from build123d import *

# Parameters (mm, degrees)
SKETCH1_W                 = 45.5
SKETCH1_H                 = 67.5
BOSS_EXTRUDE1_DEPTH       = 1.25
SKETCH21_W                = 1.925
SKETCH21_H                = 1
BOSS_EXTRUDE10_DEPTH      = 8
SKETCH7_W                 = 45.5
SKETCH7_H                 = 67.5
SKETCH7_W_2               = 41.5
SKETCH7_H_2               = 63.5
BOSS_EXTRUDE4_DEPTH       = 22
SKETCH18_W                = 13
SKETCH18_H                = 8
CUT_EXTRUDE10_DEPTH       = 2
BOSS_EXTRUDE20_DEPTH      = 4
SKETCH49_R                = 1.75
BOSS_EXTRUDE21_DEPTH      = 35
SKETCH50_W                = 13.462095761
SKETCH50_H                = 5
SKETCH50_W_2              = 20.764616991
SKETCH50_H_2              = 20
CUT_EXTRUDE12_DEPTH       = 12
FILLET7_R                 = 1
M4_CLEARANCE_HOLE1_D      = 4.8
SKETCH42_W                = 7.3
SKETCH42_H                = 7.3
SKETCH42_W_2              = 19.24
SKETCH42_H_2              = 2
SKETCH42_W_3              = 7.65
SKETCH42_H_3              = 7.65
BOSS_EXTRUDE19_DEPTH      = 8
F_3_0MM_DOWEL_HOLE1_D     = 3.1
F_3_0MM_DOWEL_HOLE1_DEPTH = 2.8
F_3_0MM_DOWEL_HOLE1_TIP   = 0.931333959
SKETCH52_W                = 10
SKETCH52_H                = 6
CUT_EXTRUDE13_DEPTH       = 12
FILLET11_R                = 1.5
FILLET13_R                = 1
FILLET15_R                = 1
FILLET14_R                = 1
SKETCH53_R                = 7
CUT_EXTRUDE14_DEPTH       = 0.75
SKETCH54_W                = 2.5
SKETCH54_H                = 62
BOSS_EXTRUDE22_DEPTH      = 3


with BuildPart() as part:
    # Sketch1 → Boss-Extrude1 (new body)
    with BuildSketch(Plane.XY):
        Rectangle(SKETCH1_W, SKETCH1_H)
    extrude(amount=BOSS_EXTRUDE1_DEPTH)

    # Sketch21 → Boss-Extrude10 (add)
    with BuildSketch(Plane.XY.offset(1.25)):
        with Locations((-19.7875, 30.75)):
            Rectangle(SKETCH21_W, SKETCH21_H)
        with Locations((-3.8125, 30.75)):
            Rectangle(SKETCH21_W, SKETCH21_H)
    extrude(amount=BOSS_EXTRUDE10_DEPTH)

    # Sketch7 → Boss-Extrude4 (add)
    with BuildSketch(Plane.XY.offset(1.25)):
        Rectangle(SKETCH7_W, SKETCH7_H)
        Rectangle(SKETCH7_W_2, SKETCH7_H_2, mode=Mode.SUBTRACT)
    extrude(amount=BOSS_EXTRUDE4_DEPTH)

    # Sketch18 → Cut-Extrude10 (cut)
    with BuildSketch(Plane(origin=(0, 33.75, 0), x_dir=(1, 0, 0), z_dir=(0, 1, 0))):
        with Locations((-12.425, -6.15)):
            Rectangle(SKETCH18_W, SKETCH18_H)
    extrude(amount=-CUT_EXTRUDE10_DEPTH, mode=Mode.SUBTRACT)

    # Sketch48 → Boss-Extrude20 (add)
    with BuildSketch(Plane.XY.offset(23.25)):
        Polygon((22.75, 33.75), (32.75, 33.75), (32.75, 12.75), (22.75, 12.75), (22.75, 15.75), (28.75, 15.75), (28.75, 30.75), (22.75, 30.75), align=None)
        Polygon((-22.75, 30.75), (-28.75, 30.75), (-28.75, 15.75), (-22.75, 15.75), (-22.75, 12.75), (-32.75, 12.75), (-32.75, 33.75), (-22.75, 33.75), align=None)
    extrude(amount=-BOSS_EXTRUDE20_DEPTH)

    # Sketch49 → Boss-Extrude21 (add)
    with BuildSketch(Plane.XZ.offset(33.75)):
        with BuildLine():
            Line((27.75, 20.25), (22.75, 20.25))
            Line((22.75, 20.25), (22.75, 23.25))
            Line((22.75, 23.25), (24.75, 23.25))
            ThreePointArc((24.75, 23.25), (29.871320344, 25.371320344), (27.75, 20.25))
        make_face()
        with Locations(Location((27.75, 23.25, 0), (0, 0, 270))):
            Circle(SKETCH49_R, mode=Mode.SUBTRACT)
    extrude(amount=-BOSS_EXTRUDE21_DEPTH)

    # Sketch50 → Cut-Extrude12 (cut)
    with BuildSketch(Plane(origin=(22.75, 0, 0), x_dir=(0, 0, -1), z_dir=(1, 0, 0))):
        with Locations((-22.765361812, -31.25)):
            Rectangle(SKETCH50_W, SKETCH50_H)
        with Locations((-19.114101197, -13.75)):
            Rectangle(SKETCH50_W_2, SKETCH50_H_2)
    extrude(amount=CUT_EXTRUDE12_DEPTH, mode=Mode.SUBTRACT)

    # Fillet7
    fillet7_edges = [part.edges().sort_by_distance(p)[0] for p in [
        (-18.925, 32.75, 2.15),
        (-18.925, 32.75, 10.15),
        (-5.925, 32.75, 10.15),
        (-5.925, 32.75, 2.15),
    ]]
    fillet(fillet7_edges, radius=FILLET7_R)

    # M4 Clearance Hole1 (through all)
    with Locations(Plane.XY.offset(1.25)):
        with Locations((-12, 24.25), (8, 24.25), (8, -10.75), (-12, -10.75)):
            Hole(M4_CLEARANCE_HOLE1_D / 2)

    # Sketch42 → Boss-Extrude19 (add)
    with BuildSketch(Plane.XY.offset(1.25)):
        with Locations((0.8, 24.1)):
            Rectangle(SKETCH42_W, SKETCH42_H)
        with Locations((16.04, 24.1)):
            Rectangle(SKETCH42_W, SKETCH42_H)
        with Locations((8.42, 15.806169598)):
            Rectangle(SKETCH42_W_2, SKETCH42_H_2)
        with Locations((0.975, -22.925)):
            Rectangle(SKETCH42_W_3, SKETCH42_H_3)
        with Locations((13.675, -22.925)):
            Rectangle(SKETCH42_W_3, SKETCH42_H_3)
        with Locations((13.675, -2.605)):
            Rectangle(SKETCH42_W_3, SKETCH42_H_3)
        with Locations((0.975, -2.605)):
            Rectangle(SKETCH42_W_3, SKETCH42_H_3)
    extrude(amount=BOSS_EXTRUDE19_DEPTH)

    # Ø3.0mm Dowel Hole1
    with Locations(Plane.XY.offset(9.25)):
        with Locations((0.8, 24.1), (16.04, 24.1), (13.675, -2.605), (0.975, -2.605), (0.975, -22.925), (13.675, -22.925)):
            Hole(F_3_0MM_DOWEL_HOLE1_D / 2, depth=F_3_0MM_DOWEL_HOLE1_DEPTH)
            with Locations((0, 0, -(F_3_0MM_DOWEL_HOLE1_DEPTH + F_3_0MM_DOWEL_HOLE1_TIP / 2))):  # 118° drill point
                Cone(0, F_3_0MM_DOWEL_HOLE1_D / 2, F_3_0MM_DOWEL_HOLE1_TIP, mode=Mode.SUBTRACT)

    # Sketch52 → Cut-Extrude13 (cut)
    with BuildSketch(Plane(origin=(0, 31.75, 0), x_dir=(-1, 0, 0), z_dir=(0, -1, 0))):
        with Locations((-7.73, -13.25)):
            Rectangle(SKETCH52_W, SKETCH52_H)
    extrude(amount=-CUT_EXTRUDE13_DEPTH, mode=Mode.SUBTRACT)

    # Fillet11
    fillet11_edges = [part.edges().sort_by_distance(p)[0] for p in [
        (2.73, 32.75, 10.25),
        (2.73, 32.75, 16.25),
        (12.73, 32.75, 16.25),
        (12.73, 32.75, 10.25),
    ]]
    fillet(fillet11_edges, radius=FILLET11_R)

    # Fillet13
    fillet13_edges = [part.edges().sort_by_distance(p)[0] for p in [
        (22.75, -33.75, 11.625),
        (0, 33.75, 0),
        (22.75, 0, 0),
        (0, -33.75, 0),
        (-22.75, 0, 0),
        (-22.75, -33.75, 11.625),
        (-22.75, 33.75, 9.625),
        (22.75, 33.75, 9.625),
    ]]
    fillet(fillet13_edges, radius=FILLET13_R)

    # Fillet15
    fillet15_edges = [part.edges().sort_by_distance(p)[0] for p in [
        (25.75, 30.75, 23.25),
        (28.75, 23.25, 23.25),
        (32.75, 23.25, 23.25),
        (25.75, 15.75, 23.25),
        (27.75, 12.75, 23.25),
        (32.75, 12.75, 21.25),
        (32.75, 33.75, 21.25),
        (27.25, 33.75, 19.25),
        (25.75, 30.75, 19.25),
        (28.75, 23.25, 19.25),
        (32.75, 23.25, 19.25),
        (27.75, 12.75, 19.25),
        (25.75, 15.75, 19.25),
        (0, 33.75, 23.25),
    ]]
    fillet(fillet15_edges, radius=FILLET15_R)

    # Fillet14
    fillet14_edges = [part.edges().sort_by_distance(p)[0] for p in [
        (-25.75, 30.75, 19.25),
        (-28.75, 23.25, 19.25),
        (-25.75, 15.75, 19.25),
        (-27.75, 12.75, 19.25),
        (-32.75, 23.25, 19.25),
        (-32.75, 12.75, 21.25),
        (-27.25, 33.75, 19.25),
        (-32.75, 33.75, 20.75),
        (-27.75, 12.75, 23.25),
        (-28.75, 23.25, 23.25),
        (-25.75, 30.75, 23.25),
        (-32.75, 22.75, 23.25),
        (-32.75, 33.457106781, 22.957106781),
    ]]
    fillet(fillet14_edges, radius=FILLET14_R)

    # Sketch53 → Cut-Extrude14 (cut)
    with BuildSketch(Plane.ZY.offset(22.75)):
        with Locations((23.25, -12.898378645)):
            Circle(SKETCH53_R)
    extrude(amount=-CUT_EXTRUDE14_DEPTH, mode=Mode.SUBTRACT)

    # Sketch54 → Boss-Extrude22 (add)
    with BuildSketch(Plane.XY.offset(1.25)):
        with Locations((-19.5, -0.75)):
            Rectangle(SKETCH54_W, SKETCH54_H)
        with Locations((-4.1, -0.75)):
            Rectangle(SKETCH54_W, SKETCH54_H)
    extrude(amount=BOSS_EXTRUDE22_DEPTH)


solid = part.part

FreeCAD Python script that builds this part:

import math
import FreeCAD as App
import Part
import Sketcher


def edges_at(feature, points):
    """Names of the edges that pass closest to the given points."""
    edges = feature.Shape.Edges
    near = lambda p: min(range(len(edges)), key=lambda i: edges[i].distToShape(Part.Vertex(*p))[0])
    return sorted({f"Edge{near(p) + 1}" for p in points})


def add_polygon(sketch, points):
    """Adds a closed chain of lines whose ends are joined by coincident constraints."""
    first, n = sketch.GeometryCount, len(points)
    for a, b in zip(points, points[1:] + points[:1]):
        sketch.addGeometry(Part.LineSegment(App.Vector(*a, 0), App.Vector(*b, 0)), False)
    for i in range(n):
        sketch.addConstraint(Sketcher.Constraint("Coincident", first + i, 2, first + (i + 1) % n, 1))

doc = App.newDocument("Part")
body = doc.addObject("PartDesign::Body", "Body")

# Sketch on XY plane
sketch1 = body.newObject("Sketcher::SketchObject", "Sketch")
sketch1.AttachmentSupport = (doc.getObject("XY_Plane"), [""])
sketch1.MapMode = "FlatFace"
add_polygon(sketch1, [(-22.75, 33.75), (-22.75, -33.75), (22.75, -33.75), (22.75, 33.75)])  # lines 0-3
sketch1.addConstraint([
    Sketcher.Constraint("Vertical", 0),
    Sketcher.Constraint("Horizontal", 1),
    Sketcher.Constraint("Vertical", 2),
    Sketcher.Constraint("Horizontal", 3),
    Sketcher.Constraint("Symmetric", 0, 2, 2, 2, -1, 1),
    Sketcher.Constraint("DistanceX", 1, 1, 1, 2, 45.5),
    Sketcher.Constraint("DistanceY", 0, 2, 0, 1, 67.5),
])
pad1 = body.newObject("PartDesign::Pad", "Pad")
pad1.Profile = sketch1
pad1.Length = 1.25

# Sketch on XY plane
sketch2 = body.newObject("Sketcher::SketchObject", "Sketch001")
sketch2.AttachmentSupport = (doc.getObject("XY_Plane"), [""])
sketch2.MapMode = "FlatFace"
sketch2.AttachmentOffset = App.Placement(App.Vector(0, 0, 1.25), App.Rotation())
add_polygon(sketch2, [(-20.75, 31.25), (-20.75, 30.25), (-18.825, 30.25), (-18.825, 31.25)])  # lines 0-3
add_polygon(sketch2, [(-4.775, 31.25), (-4.775, 30.25), (-2.85, 30.25), (-2.85, 31.25)])  # lines 4-7
sketch2.addConstraint([
    Sketcher.Constraint("Vertical", 0),
    Sketcher.Constraint("Horizontal", 1),
    Sketcher.Constraint("Vertical", 2),
    Sketcher.Constraint("Horizontal", 3),
    Sketcher.Constraint("Vertical", 4),
    Sketcher.Constraint("Horizontal", 5),
    Sketcher.Constraint("Vertical", 6),
    Sketcher.Constraint("Horizontal", 7),
    Sketcher.Constraint("Horizontal", 1, 2, 4, 2),
    Sketcher.Constraint("Horizontal", 3, 2, 6, 2),
    Sketcher.Constraint("Equal", 3, 5),
    Sketcher.Constraint("DistanceY", 0, 2, 0, 1, 1.0),
    Sketcher.Constraint("DistanceX", 0, 2, 5, 2, 17.9),
    Sketcher.Constraint("DistanceX", 1, 1, 1, 2, 1.925),
    Sketcher.Constraint("DistanceX", 0, 2, -1, 1, 20.75),
    Sketcher.Constraint("DistanceY", -1, 1, 0, 2, 30.25),
])
pad2 = body.newObject("PartDesign::Pad", "Pad001")
pad2.Profile = sketch2
pad2.Length = 8

# Sketch on XY plane
sketch3 = body.newObject("Sketcher::SketchObject", "Sketch002")
sketch3.AttachmentSupport = (doc.getObject("XY_Plane"), [""])
sketch3.MapMode = "FlatFace"
sketch3.AttachmentOffset = App.Placement(App.Vector(0, 0, 1.25), App.Rotation())
add_polygon(sketch3, [(-22.75, 33.75), (-22.75, -33.75), (22.75, -33.75), (22.75, 33.75)])  # lines 0-3
add_polygon(sketch3, [(20.75, -31.75), (-20.75, -31.75), (-20.75, 31.75), (20.75, 31.75)])  # lines 4-7
sketch3.addConstraint([
    Sketcher.Constraint("Vertical", 0),
    Sketcher.Constraint("Horizontal", 1),
    Sketcher.Constraint("Vertical", 2),
    Sketcher.Constraint("Horizontal", 3),
    Sketcher.Constraint("Horizontal", 4),
    Sketcher.Constraint("Vertical", 5),
    Sketcher.Constraint("Horizontal", 6),
    Sketcher.Constraint("Vertical", 7),
    Sketcher.Constraint("Symmetric", 0, 2, 2, 2, -1, 1),
    Sketcher.Constraint("Symmetric", 4, 2, 6, 2, -1, 1),
    Sketcher.Constraint("DistanceX", 1, 1, 1, 2, 45.5),
    Sketcher.Constraint("DistanceX", 4, 2, 4, 1, 41.5),
    Sketcher.Constraint("DistanceY", 0, 2, 0, 1, 67.5),
    Sketcher.Constraint("DistanceY", 5, 1, 5, 2, 63.5),
])
pad3 = body.newObject("PartDesign::Pad", "Pad002")
pad3.Profile = sketch3
pad3.Length = 22

# Sketch on XZ plane
sketch4 = body.newObject("Sketcher::SketchObject", "Sketch003")
sketch4.AttachmentSupport = (doc.getObject("XZ_Plane"), [""])
sketch4.MapMode = "FlatFace"
sketch4.AttachmentOffset = App.Placement(App.Vector(0, 0, -33.75), App.Rotation())
add_polygon(sketch4, [(-18.925, 2.15), (-18.925, 10.15), (-5.925, 10.15), (-5.925, 2.15)])  # lines 0-3
sketch4.addConstraint([
    Sketcher.Constraint("Vertical", 0),
    Sketcher.Constraint("Horizontal", 1),
    Sketcher.Constraint("Vertical", 2),
    Sketcher.Constraint("Horizontal", 3),
    Sketcher.Constraint("DistanceX", 1, 1, 1, 2, 13.0),
    Sketcher.Constraint("DistanceY", 0, 1, 0, 2, 8.0),
    Sketcher.Constraint("DistanceY", -1, 1, 0, 2, 10.15),
    Sketcher.Constraint("DistanceX", 0, 2, -1, 1, 18.925),
])
pocket1 = body.newObject("PartDesign::Pocket", "Pocket")
pocket1.Profile = sketch4
pocket1.Length = 2
pocket1.Reversed = True

# Sketch on XY plane
sketch5 = body.newObject("Sketcher::SketchObject", "Sketch004")
sketch5.AttachmentSupport = (doc.getObject("XY_Plane"), [""])
sketch5.MapMode = "FlatFace"
sketch5.AttachmentOffset = App.Placement(App.Vector(0, 0, 23.25), App.Rotation())
add_polygon(sketch5, [(32.75, 33.75), (22.75, 33.75), (22.75, 30.75), (28.75, 30.75), (28.75, 15.75), (22.75, 15.75), (22.75, 12.75), (32.75, 12.75)])  # lines 0-7
add_polygon(sketch5, [(-28.75, 30.75), (-22.75, 30.75), (-22.75, 33.75), (-32.75, 33.75), (-32.75, 12.75), (-22.75, 12.75), (-22.75, 15.75), (-28.75, 15.75)])  # lines 8-15
sketch5.addConstraint([
    Sketcher.Constraint("Horizontal", 0),
    Sketcher.Constraint("Vertical", 1),
    Sketcher.Constraint("Horizontal", 2),
    Sketcher.Constraint("Vertical", 3),
    Sketcher.Constraint("Horizontal", 4),
    Sketcher.Constraint("Vertical", 5),
    Sketcher.Constraint("Horizontal", 6),
    Sketcher.Constraint("Vertical", 7),
    Sketcher.Constraint("Horizontal", 8),
    Sketcher.Constraint("Vertical", 9),
    Sketcher.Constraint("Horizontal", 10),
    Sketcher.Constraint("Vertical", 11),
    Sketcher.Constraint("Horizontal", 12),
    Sketcher.Constraint("Vertical", 13),
    Sketcher.Constraint("Horizontal", 14),
    Sketcher.Constraint("Vertical", 15),
    Sketcher.Constraint("Symmetric", 1, 2, 8, 2, -2),
    Sketcher.Constraint("Symmetric", 7, 2, 10, 2, -2),
    Sketcher.Constraint("Symmetric", 5, 2, 12, 2, -2),
    Sketcher.Constraint("Symmetric", 3, 2, 14, 2, -2),
    Sketcher.Constraint("Vertical", 1, 2, 4, 2),
    Sketcher.Constraint("Equal", 1, 5),
    Sketcher.Constraint("DistanceX", 0, 2, 0, 1, 10.0),
    Sketcher.Constraint("DistanceX", 2, 1, 2, 2, 6.0),
    Sketcher.Constraint("DistanceY", 1, 2, 1, 1, 3.0),
    Sketcher.Constraint("DistanceY", 3, 2, 3, 1, 15.0),
    Sketcher.Constraint("DistanceX", 8, 2, 1, 2, 45.5),
    Sketcher.Constraint("DistanceY", -1, 1, 0, 2, 33.75),
])
pad4 = body.newObject("PartDesign::Pad", "Pad003")
pad4.Profile = sketch5
pad4.Length = 4
pad4.Reversed = True

# Sketch on XZ plane
sketch6 = body.newObject("Sketcher::SketchObject", "Sketch005")
sketch6.AttachmentSupport = (doc.getObject("XZ_Plane"), [""])
sketch6.MapMode = "FlatFace"
sketch6.AttachmentOffset = App.Placement(App.Vector(0, 0, 33.75), App.Rotation())
sketch6.addGeometry([
    Part.LineSegment(App.Vector(22.75, 20.25, 0), App.Vector(27.75, 20.25, 0)),  # 0
    Part.ArcOfCircle(Part.Circle(App.Vector(27.75, 23.25, 0), App.Vector(0, 0, 1), 3), math.radians(-90), math.radians(180)),  # 1
    Part.LineSegment(App.Vector(24.75, 23.25, 0), App.Vector(22.75, 23.25, 0)),  # 2
    Part.LineSegment(App.Vector(22.75, 23.25, 0), App.Vector(22.75, 20.25, 0)),  # 3
    Part.Circle(App.Vector(27.75, 23.25, 0), App.Vector(0, 0, 1), 1.75),  # 4
], False)
sketch6.addConstraint([
    Sketcher.Constraint("Tangent", 0, 2, 1, 1),
    Sketcher.Constraint("Coincident", 1, 2, 2, 1),
    Sketcher.Constraint("Coincident", 2, 2, 3, 1),
    Sketcher.Constraint("Coincident", 3, 2, 0, 1),
    Sketcher.Constraint("Horizontal", 0),
    Sketcher.Constraint("Horizontal", 2),
    Sketcher.Constraint("Vertical", 3),
    Sketcher.Constraint("Coincident", 4, 3, 1, 3),
    Sketcher.Constraint("Horizontal", 4, 3, 1, 2),
    Sketcher.Constraint("Radius", 1, 3.0),
    Sketcher.Constraint("Diameter", 4, 3.5),
    Sketcher.Constraint("DistanceX", 0, 1, 0, 2, 5.0),
    Sketcher.Constraint("DistanceX", -1, 1, 1, 3, 27.75),
    Sketcher.Constraint("DistanceY", -1, 1, 1, 3, 23.25),
])
pad5 = body.newObject("PartDesign::Pad", "Pad004")
pad5.Profile = sketch6
pad5.Length = 35
pad5.Reversed = True

# Sketch on YZ plane
sketch7 = body.newObject("Sketcher::SketchObject", "Sketch006")
sketch7.AttachmentSupport = (doc.getObject("YZ_Plane"), [""])
sketch7.MapMode = "FlatFace"
sketch7.AttachmentOffset = App.Placement(App.Vector(0, 0, 22.75), App.Rotation())
add_polygon(sketch7, [(-28.75, 29.49641), (-33.75, 29.49641), (-33.75, 16.034314), (-28.75, 16.034314)])  # lines 0-3
add_polygon(sketch7, [(-3.75, 29.49641), (-23.75, 29.49641), (-23.75, 8.731793), (-3.75, 8.731793)])  # lines 4-7
sketch7.addConstraint([
    Sketcher.Constraint("Horizontal", 0),
    Sketcher.Constraint("Vertical", 1),
    Sketcher.Constraint("Horizontal", 2),
    Sketcher.Constraint("Vertical", 3),
    Sketcher.Constraint("Horizontal", 4),
    Sketcher.Constraint("Vertical", 5),
    Sketcher.Constraint("Horizontal", 6),
    Sketcher.Constraint("Vertical", 7),
    Sketcher.Constraint("Horizontal", 3, 2, 4, 2),
    Sketcher.Constraint("DistanceX", 0, 2, 0, 1, 5.0),
    Sketcher.Constraint("DistanceX", 4, 2, 4, 1, 20.0),
    Sketcher.Constraint("DistanceX", 3, 2, 4, 2, 5.0),
    Sketcher.Constraint("DistanceX", 0, 2, -1, 1, 33.75),
    Sketcher.Constraint("DistanceY", 1, 2, 1, 1, 13.462096),
    Sketcher.Constraint("DistanceY", 5, 2, 5, 1, 20.764617),
    Sketcher.Constraint("DistanceY", -1, 1, 0, 2, 29.49641),
])
pocket2 = body.newObject("PartDesign::Pocket", "Pocket001")
pocket2.Profile = sketch7
pocket2.Length = 12
pocket2.Reversed = True
doc.recompute()

fillet = body.newObject("PartDesign::Fillet", "Fillet")
fillet.Base = (pocket2, edges_at(pocket2, [
    (-18.925, 32.75, 2.15),
    (-18.925, 32.75, 10.15),
    (-5.925, 32.75, 10.15),
    (-5.925, 32.75, 2.15),
]))
fillet.Radius = 1

# Sketch on XY plane
sketch8 = body.newObject("Sketcher::SketchObject", "Sketch007")
sketch8.AttachmentSupport = (doc.getObject("XY_Plane"), [""])
sketch8.MapMode = "FlatFace"
sketch8.AttachmentOffset = App.Placement(App.Vector(0, 0, 1.25), App.Rotation())
sketch8.addGeometry([
    Part.Circle(App.Vector(-12, 24.25, 0), App.Vector(0, 0, 1), 2.4),
    Part.Circle(App.Vector(8, 24.25, 0), App.Vector(0, 0, 1), 2.4),
    Part.Circle(App.Vector(8, -10.75, 0), App.Vector(0, 0, 1), 2.4),
    Part.Circle(App.Vector(-12, -10.75, 0), App.Vector(0, 0, 1), 2.4),
], False)
sketch8.addConstraint([
    Sketcher.Constraint("Equal", 0, 1),
    Sketcher.Constraint("Equal", 1, 2),
    Sketcher.Constraint("Equal", 2, 3),
    Sketcher.Constraint("Horizontal", 0, 3, 1, 3),
    Sketcher.Constraint("Horizontal", 2, 3, 3, 3),
    Sketcher.Constraint("Vertical", 1, 3, 2, 3),
    Sketcher.Constraint("Vertical", 0, 3, 3, 3),
    Sketcher.Constraint("Diameter", 0, 4.8),
    Sketcher.Constraint("DistanceX", 0, 3, -1, 1, 12.0),
    Sketcher.Constraint("DistanceX", -1, 1, 1, 3, 8.0),
    Sketcher.Constraint("DistanceY", 2, 3, 1, 3, 35.0),
    Sketcher.Constraint("DistanceY", -1, 1, 0, 3, 24.25),
])
doc.recompute()
hole = body.newObject("PartDesign::Hole", "Hole")
hole.Profile = sketch8
hole.ThreadType = "None"
hole.Diameter = 4.8
hole.DepthType = "ThroughAll"

# Sketch on XY plane
sketch9 = body.newObject("Sketcher::SketchObject", "Sketch008")
sketch9.AttachmentSupport = (doc.getObject("XY_Plane"), [""])
sketch9.MapMode = "FlatFace"
sketch9.AttachmentOffset = App.Placement(App.Vector(0, 0, 1.25), App.Rotation())
add_polygon(sketch9, [(-2.85, 27.75), (-2.85, 20.45), (4.45, 20.45), (4.45, 27.75)])  # lines 0-3
add_polygon(sketch9, [(12.39, 27.75), (12.39, 20.45), (19.69, 20.45), (19.69, 27.75)])  # lines 4-7
add_polygon(sketch9, [(-1.2, 16.80617), (-1.2, 14.80617), (18.04, 14.80617), (18.04, 16.80617)])  # lines 8-11
add_polygon(sketch9, [(-2.85, -19.1), (-2.85, -26.75), (4.8, -26.75), (4.8, -19.1)])  # lines 12-15
add_polygon(sketch9, [(9.85, -19.1), (9.85, -26.75), (17.5, -26.75), (17.5, -19.1)])  # lines 16-19
add_polygon(sketch9, [(9.85, 1.22), (9.85, -6.43), (17.5, -6.43), (17.5, 1.22)])  # lines 20-23
add_polygon(sketch9, [(-2.85, 1.22), (-2.85, -6.43), (4.8, -6.43), (4.8, 1.22)])  # lines 24-27
sketch9.addConstraint([
    Sketcher.Constraint("Vertical", 0),
    Sketcher.Constraint("Horizontal", 1),
    Sketcher.Constraint("Vertical", 2),
    Sketcher.Constraint("Horizontal", 3),
    Sketcher.Constraint("Vertical", 4),
    Sketcher.Constraint("Horizontal", 5),
    Sketcher.Constraint("Vertical", 6),
    Sketcher.Constraint("Horizontal", 7),
    Sketcher.Constraint("Vertical", 8),
    Sketcher.Constraint("Horizontal", 9),
    Sketcher.Constraint("Vertical", 10),
    Sketcher.Constraint("Horizontal", 11),
    Sketcher.Constraint("Vertical", 12),
    Sketcher.Constraint("Horizontal", 13),
    Sketcher.Constraint("Vertical", 14),
    Sketcher.Constraint("Horizontal", 15),
    Sketcher.Constraint("Vertical", 16),
    Sketcher.Constraint("Horizontal", 17),
    Sketcher.Constraint("Vertical", 18),
    Sketcher.Constraint("Horizontal", 19),
    Sketcher.Constraint("Vertical", 20),
    Sketcher.Constraint("Horizontal", 21),
    Sketcher.Constraint("Vertical", 22),
    Sketcher.Constraint("Horizontal", 23),
    Sketcher.Constraint("Vertical", 24),
    Sketcher.Constraint("Horizontal", 25),
    Sketcher.Constraint("Vertical", 26),
    Sketcher.Constraint("Horizontal", 27),
    Sketcher.Constraint("Horizontal", 1, 2, 4, 2),
    Sketcher.Constraint("Horizontal", 3, 2, 6, 2),
    Sketcher.Constraint("Horizontal", 13, 2, 16, 2),
    Sketcher.Constraint("Horizontal", 15, 2, 18, 2),
    Sketcher.Constraint("Horizontal", 21, 2, 24, 2),
    Sketcher.Constraint("Horizontal", 23, 2, 26, 2),
    Sketcher.Constraint("Vertical", 3, 2, 12, 2),
    Sketcher.Constraint("Vertical", 19, 2, 20, 2),
    Sketcher.Constraint("Vertical", 18, 2, 21, 2),
    Sketcher.Constraint("Vertical", 15, 2, 24, 2),
    Sketcher.Constraint("Vertical", 14, 2, 25, 2),
    Sketcher.Constraint("Equal", 3, 5),
    Sketcher.Constraint("Equal", 15, 17),
    Sketcher.Constraint("Equal", 7, 0),
    Sketcher.Constraint("Equal", 27, 12),
    Sketcher.Constraint("Equal", 18, 20),
    Sketcher.Constraint("DistanceY", 8, 2, 8, 1, 2.0),
    Sketcher.Constraint("DistanceX", 1, 1, 1, 2, 7.3),
    Sketcher.Constraint("DistanceX", 8, 2, 13, 2, 6.0),
    Sketcher.Constraint("DistanceX", 9, 1, 9, 2, 19.24),
    Sketcher.Constraint("DistanceX", 13, 1, 13, 2, 7.65),
    Sketcher.Constraint("DistanceX", 8, 2, -1, 1, 1.2),
    Sketcher.Constraint("DistanceY", 14, 2, -1, 1, 19.1),
    Sketcher.Constraint("DistanceX", -1, 1, 17, 2, 17.5),
    Sketcher.Constraint("DistanceY", 12, 2, 0, 2, 47.2),
    Sketcher.Constraint("DistanceX", -1, 1, 4, 2, 12.39),
    Sketcher.Constraint("DistanceY", 20, 2, -1, 1, 6.43),
    Sketcher.Constraint("DistanceY", -1, 1, 8, 2, 14.80617),
])
pad6 = body.newObject("PartDesign::Pad", "Pad005")
pad6.Profile = sketch9
pad6.Length = 8

# Sketch on XY plane
sketch10 = body.newObject("Sketcher::SketchObject", "Sketch009")
sketch10.AttachmentSupport = (doc.getObject("XY_Plane"), [""])
sketch10.MapMode = "FlatFace"
sketch10.AttachmentOffset = App.Placement(App.Vector(0, 0, 9.25), App.Rotation())
sketch10.addGeometry([
    Part.Circle(App.Vector(0.8, 24.1, 0), App.Vector(0, 0, 1), 1.55),  # 0
    Part.Circle(App.Vector(16.04, 24.1, 0), App.Vector(0, 0, 1), 1.55),  # 1
    Part.Circle(App.Vector(13.675, -2.605, 0), App.Vector(0, 0, 1), 1.55),  # 2
    Part.Circle(App.Vector(0.975, -2.605, 0), App.Vector(0, 0, 1), 1.55),  # 3
    Part.Circle(App.Vector(0.975, -22.925, 0), App.Vector(0, 0, 1), 1.55),  # 4
    Part.Circle(App.Vector(13.675, -22.925, 0), App.Vector(0, 0, 1), 1.55),  # 5
], False)
sketch10.addConstraint([
    Sketcher.Constraint("Equal", 0, 1),
    Sketcher.Constraint("Equal", 1, 2),
    Sketcher.Constraint("Equal", 2, 3),
    Sketcher.Constraint("Equal", 3, 4),
    Sketcher.Constraint("Equal", 4, 5),
    Sketcher.Constraint("Horizontal", 0, 3, 1, 3),
    Sketcher.Constraint("Horizontal", 2, 3, 3, 3),
    Sketcher.Constraint("Horizontal", 4, 3, 5, 3),
    Sketcher.Constraint("Vertical", 3, 3, 4, 3),
    Sketcher.Constraint("Vertical", 2, 3, 5, 3),
    Sketcher.Constraint("Diameter", 0, 3.1),
    Sketcher.Constraint("DistanceX", -1, 1, 0, 3, 0.8),
    Sketcher.Constraint("DistanceY", -1, 1, 0, 3, 24.1),
    Sketcher.Constraint("DistanceX", 3, 3, 2, 3, 12.7),
    Sketcher.Constraint("DistanceX", -1, 1, 1, 3, 16.04),
    Sketcher.Constraint("DistanceY", 4, 3, 3, 3, 20.32),
    Sketcher.Constraint("DistanceX", -1, 1, 2, 3, 13.675),
    Sketcher.Constraint("DistanceY", 2, 3, -1, 1, 2.605),
])
doc.recompute()
hole2 = body.newObject("PartDesign::Hole", "Hole001")
hole2.Profile = sketch10
hole2.ThreadType = "None"
hole2.Diameter = 3.1
hole2.DepthType = "Dimension"
hole2.Depth = 2.8
hole2.DrillPoint = "Angled"
hole2.DrillPointAngle = 118

# Sketch on XZ plane
sketch11 = body.newObject("Sketcher::SketchObject", "Sketch010")
sketch11.AttachmentSupport = (doc.getObject("XZ_Plane"), [""])
sketch11.MapMode = "FlatFace"
sketch11.AttachmentOffset = App.Placement(App.Vector(0, 0, -31.75), App.Rotation())
add_polygon(sketch11, [(12.73, 10.25), (12.73, 16.25), (2.73, 16.25), (2.73, 10.25)])  # lines 0-3
sketch11.addConstraint([
    Sketcher.Constraint("Vertical", 0),
    Sketcher.Constraint("Horizontal", 1),
    Sketcher.Constraint("Vertical", 2),
    Sketcher.Constraint("Horizontal", 3),
    Sketcher.Constraint("DistanceX", 1, 2, 1, 1, 10.0),
    Sketcher.Constraint("DistanceY", 0, 1, 0, 2, 6.0),
    Sketcher.Constraint("DistanceX", -1, 1, 0, 2, 12.73),
    Sketcher.Constraint("DistanceY", -1, 1, 0, 2, 16.25),
])
pocket3 = body.newObject("PartDesign::Pocket", "Pocket002")
pocket3.Profile = sketch11
pocket3.Length = 12
doc.recompute()

fillet2 = body.newObject("PartDesign::Fillet", "Fillet001")
fillet2.Base = (pocket3, edges_at(pocket3, [
    (2.73, 32.75, 10.25),
    (2.73, 32.75, 16.25),
    (12.73, 32.75, 16.25),
    (12.73, 32.75, 10.25),
]))
fillet2.Radius = 1.5
doc.recompute()

fillet3 = body.newObject("PartDesign::Fillet", "Fillet002")
fillet3.Base = (fillet2, edges_at(fillet2, [
    (22.75, -33.75, 11.625),
    (0, 33.75, 0),
    (22.75, 0, 0),
    (0, -33.75, 0),
    (-22.75, 0, 0),
    (-22.75, -33.75, 11.625),
    (-22.75, 33.75, 9.625),
    (22.75, 33.75, 9.625),
]))
fillet3.Radius = 1
doc.recompute()

fillet4 = body.newObject("PartDesign::Fillet", "Fillet003")
fillet4.Base = (fillet3, edges_at(fillet3, [
    (25.75, 30.75, 23.25),
    (28.75, 23.25, 23.25),
    (32.75, 23.25, 23.25),
    (25.75, 15.75, 23.25),
    (27.75, 12.75, 23.25),
    (32.75, 12.75, 21.25),
    (32.75, 33.75, 21.25),
    (27.25, 33.75, 19.25),
    (25.75, 30.75, 19.25),
    (28.75, 23.25, 19.25),
    (32.75, 23.25, 19.25),
    (27.75, 12.75, 19.25),
    (25.75, 15.75, 19.25),
    (0, 33.75, 23.25),
]))
fillet4.Radius = 1
doc.recompute()

fillet5 = body.newObject("PartDesign::Fillet", "Fillet004")
fillet5.Base = (fillet4, edges_at(fillet4, [
    (-25.75, 30.75, 19.25),
    (-28.75, 23.25, 19.25),
    (-25.75, 15.75, 19.25),
    (-27.75, 12.75, 19.25),
    (-32.75, 23.25, 19.25),
    (-32.75, 12.75, 21.25),
    (-27.25, 33.75, 19.25),
    (-32.75, 33.75, 20.75),
    (-27.75, 12.75, 23.25),
    (-28.75, 23.25, 23.25),
    (-25.75, 30.75, 23.25),
    (-32.75, 22.75, 23.25),
    (-32.75, 33.457, 22.957),
]))
fillet5.Radius = 1

# Sketch on YZ plane
sketch12 = body.newObject("Sketcher::SketchObject", "Sketch011")
sketch12.AttachmentSupport = (doc.getObject("YZ_Plane"), [""])
sketch12.MapMode = "FlatFace"
sketch12.AttachmentOffset = App.Placement(App.Vector(0, 0, -22.75), App.Rotation())
sketch12.addGeometry(Part.Circle(App.Vector(-12.898379, 23.25, 0), App.Vector(0, 0, 1), 7), False)
sketch12.addConstraint([
    Sketcher.Constraint("Diameter", 0, 14.0),
    Sketcher.Constraint("DistanceY", -1, 1, 0, 3, 23.25),
    Sketcher.Constraint("DistanceX", 0, 3, -1, 1, 12.898379),
])
pocket4 = body.newObject("PartDesign::Pocket", "Pocket003")
pocket4.Profile = sketch12
pocket4.Length = 0.75
pocket4.Reversed = True

# Sketch on XY plane
sketch13 = body.newObject("Sketcher::SketchObject", "Sketch012")
sketch13.AttachmentSupport = (doc.getObject("XY_Plane"), [""])
sketch13.MapMode = "FlatFace"
sketch13.AttachmentOffset = App.Placement(App.Vector(0, 0, 1.25), App.Rotation())
add_polygon(sketch13, [(-20.75, 30.25), (-20.75, -31.75), (-18.25, -31.75), (-18.25, 30.25)])  # lines 0-3
add_polygon(sketch13, [(-5.35, 30.25), (-5.35, -31.75), (-2.85, -31.75), (-2.85, 30.25)])  # lines 4-7
sketch13.addConstraint([
    Sketcher.Constraint("Vertical", 0),
    Sketcher.Constraint("Horizontal", 1),
    Sketcher.Constraint("Vertical", 2),
    Sketcher.Constraint("Horizontal", 3),
    Sketcher.Constraint("Vertical", 4),
    Sketcher.Constraint("Horizontal", 5),
    Sketcher.Constraint("Vertical", 6),
    Sketcher.Constraint("Horizontal", 7),
    Sketcher.Constraint("Horizontal", 1, 2, 4, 2),
    Sketcher.Constraint("Horizontal", 3, 2, 6, 2),
    Sketcher.Constraint("Equal", 3, 5),
    Sketcher.Constraint("DistanceY", 0, 2, 0, 1, 62.0),
    Sketcher.Constraint("DistanceX", 1, 1, 1, 2, 2.5),
    Sketcher.Constraint("DistanceX", 1, 2, 4, 2, 12.9),
    Sketcher.Constraint("DistanceX", 0, 2, -1, 1, 20.75),
    Sketcher.Constraint("DistanceY", 0, 2, -1, 1, 31.75),
])
pad7 = body.newObject("PartDesign::Pad", "Pad006")
pad7.Profile = sketch13
pad7.Length = 3

doc.recompute()
